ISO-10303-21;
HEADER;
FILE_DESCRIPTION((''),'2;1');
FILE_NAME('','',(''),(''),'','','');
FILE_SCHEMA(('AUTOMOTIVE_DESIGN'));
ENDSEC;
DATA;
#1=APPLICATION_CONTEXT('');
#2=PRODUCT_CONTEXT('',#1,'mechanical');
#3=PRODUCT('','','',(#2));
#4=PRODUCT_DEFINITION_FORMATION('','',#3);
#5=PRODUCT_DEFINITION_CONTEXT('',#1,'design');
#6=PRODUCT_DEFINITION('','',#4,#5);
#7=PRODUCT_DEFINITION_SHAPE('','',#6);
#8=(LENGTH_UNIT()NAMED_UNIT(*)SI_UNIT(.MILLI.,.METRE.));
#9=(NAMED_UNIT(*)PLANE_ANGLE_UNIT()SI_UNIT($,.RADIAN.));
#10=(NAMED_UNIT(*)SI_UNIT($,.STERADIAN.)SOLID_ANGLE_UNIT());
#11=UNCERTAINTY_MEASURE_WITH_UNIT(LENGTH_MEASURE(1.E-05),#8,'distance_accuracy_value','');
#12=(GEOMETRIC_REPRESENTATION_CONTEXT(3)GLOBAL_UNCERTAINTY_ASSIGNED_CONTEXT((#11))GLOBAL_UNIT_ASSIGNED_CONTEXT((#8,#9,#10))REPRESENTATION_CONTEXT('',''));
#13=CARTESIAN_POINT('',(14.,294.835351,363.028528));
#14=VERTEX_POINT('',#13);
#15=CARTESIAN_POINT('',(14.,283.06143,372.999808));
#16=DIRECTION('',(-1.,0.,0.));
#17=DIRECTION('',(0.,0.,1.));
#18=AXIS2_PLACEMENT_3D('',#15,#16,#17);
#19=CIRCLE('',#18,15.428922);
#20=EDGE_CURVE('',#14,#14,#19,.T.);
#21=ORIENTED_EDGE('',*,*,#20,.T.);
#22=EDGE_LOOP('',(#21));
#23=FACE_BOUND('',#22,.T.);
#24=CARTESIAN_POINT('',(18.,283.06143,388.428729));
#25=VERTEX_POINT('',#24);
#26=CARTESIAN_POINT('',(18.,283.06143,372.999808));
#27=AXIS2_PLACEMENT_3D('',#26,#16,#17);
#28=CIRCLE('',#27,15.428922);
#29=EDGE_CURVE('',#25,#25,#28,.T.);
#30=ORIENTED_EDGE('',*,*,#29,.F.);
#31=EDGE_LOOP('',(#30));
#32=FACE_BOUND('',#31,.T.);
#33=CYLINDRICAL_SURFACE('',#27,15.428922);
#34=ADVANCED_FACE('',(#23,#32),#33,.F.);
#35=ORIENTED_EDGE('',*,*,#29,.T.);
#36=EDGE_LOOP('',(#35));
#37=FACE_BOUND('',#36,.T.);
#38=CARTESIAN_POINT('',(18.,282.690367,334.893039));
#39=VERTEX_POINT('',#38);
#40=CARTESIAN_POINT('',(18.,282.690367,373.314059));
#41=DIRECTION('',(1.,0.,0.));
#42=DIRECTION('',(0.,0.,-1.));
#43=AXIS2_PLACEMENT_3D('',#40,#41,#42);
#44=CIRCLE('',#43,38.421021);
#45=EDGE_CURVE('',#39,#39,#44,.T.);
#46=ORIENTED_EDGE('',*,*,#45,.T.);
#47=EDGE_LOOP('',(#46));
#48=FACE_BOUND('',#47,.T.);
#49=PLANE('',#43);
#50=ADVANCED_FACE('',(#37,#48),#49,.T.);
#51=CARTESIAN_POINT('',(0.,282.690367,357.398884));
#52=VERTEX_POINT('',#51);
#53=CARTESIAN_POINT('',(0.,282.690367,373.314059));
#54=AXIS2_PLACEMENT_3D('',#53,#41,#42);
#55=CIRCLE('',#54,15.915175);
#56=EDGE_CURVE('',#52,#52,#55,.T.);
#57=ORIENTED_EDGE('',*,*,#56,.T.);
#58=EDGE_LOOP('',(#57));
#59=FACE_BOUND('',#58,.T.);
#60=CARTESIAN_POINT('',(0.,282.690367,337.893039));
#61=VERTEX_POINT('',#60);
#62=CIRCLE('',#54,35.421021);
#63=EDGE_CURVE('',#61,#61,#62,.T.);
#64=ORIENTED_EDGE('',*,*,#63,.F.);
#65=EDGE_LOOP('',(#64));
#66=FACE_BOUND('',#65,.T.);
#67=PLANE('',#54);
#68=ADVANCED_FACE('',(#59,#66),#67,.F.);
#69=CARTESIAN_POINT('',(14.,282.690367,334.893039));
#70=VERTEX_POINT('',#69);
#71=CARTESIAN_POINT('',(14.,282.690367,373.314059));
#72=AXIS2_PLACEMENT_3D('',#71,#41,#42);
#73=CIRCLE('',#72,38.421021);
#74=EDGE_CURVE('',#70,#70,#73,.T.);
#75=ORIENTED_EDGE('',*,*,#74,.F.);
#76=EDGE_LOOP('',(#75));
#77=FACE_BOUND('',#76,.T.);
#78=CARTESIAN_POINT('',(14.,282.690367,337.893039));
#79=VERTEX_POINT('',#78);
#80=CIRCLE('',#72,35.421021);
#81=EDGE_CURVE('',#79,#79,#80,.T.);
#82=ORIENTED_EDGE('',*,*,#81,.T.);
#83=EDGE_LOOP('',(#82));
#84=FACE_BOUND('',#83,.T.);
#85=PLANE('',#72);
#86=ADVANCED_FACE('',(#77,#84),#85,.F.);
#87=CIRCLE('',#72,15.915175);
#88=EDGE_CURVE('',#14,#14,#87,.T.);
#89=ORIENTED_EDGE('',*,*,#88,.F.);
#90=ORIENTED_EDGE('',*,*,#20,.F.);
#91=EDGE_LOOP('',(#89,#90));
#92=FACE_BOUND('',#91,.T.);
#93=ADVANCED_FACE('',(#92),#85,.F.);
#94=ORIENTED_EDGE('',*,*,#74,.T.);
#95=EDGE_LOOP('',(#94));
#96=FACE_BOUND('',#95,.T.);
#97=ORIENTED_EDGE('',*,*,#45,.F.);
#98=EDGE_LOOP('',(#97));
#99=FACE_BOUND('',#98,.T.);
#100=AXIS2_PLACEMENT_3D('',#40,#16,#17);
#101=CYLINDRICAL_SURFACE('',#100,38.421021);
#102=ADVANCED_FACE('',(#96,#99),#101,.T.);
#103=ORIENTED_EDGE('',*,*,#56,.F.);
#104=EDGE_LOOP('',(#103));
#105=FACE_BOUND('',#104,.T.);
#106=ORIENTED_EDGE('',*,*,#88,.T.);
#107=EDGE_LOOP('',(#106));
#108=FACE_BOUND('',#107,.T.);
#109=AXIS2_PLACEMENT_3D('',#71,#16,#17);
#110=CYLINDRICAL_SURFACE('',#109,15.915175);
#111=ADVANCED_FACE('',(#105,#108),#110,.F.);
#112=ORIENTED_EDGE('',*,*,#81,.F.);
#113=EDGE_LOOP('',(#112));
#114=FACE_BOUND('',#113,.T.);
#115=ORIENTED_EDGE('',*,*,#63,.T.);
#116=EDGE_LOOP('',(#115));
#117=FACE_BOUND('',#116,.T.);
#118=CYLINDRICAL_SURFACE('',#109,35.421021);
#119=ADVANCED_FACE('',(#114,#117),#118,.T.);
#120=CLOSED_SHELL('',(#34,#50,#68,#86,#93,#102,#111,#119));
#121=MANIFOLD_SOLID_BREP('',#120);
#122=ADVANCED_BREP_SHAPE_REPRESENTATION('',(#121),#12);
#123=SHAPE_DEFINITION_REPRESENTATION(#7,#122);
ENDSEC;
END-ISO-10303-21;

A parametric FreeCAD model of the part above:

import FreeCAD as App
import Part
import Sketcher

V = App.Vector

doc = App.newDocument("Part")
body = doc.addObject("PartDesign::Body", "Body")

sketch1 = body.newObject("Sketcher::SketchObject", "Sketch")
sketch1.AttachmentSupport = (doc.getObject("YZ_Plane"), [""])
sketch1.MapMode = "FlatFace"
sketch1.addGeometry(Part.Circle(V(282.690367, 373.314059, 0), V(0, 0, 1), 35.421021), False)
sketch1.addGeometry(Part.Circle(V(282.690367, 373.314059, 0), V(0, 0, 1), 15.915175), False)
sketch1.addConstraint(Sketcher.Constraint("Coincident", 1, 3, 0, 3))
sketch1.addConstraint(Sketcher.Constraint("Diameter", 0, 70.842041))
sketch1.addConstraint(Sketcher.Constraint("Diameter", 1, 31.83035))
sketch1.addConstraint(Sketcher.Constraint("DistanceY", -1, 1, 0, 3, 373.314059))
sketch1.addConstraint(Sketcher.Constraint("DistanceX", -1, 1, 0, 3, 282.690367))
pad1 = body.newObject("PartDesign::Pad", "Pad")
pad1.Profile = sketch1
pad1.Length = 14

sketch2 = body.newObject("Sketcher::SketchObject", "Sketch001")
sketch2.AttachmentSupport = (doc.getObject("YZ_Plane"), [""])
sketch2.MapMode = "FlatFace"
sketch2.AttachmentOffset = App.Placement(V(0, 0, 14), App.Rotation())
sketch2.addGeometry(Part.Circle(V(282.690367, 373.314059, 0), V(0, 0, 1), 38.421021), False)
sketch2.addConstraint(Sketcher.Constraint("Diameter", 0, 76.842041))
sketch2.addConstraint(Sketcher.Constraint("DistanceY", -1, 1, 0, 3, 373.314059))
sketch2.addConstraint(Sketcher.Constraint("DistanceX", -1, 1, 0, 3, 282.690367))
pad2 = body.newObject("PartDesign::Pad", "Pad001")
pad2.Profile = sketch2
pad2.Length = 4

sketch3 = body.newObject("Sketcher::SketchObject", "Sketch002")
sketch3.AttachmentSupport = (doc.getObject("YZ_Plane"), [""])
sketch3.MapMode = "FlatFace"
sketch3.AttachmentOffset = App.Placement(V(0, 0, 14), App.Rotation())
sketch3.addGeometry(Part.Circle(V(283.06143, 372.999808, 0), V(0, 0, 1), 15.428922), False)
sketch3.addConstraint(Sketcher.Constraint("Diameter", 0, 30.857844))
sketch3.addConstraint(Sketcher.Constraint("DistanceX", -1, 1, 0, 3, 283.06143))
sketch3.addConstraint(Sketcher.Constraint("DistanceY", -1, 1, 0, 3, 372.999808))
pocket1 = body.newObject("PartDesign::Pocket", "Pocket")
pocket1.Profile = sketch3
pocket1.Length = 4
pocket1.Reversed = True

doc.recompute()
